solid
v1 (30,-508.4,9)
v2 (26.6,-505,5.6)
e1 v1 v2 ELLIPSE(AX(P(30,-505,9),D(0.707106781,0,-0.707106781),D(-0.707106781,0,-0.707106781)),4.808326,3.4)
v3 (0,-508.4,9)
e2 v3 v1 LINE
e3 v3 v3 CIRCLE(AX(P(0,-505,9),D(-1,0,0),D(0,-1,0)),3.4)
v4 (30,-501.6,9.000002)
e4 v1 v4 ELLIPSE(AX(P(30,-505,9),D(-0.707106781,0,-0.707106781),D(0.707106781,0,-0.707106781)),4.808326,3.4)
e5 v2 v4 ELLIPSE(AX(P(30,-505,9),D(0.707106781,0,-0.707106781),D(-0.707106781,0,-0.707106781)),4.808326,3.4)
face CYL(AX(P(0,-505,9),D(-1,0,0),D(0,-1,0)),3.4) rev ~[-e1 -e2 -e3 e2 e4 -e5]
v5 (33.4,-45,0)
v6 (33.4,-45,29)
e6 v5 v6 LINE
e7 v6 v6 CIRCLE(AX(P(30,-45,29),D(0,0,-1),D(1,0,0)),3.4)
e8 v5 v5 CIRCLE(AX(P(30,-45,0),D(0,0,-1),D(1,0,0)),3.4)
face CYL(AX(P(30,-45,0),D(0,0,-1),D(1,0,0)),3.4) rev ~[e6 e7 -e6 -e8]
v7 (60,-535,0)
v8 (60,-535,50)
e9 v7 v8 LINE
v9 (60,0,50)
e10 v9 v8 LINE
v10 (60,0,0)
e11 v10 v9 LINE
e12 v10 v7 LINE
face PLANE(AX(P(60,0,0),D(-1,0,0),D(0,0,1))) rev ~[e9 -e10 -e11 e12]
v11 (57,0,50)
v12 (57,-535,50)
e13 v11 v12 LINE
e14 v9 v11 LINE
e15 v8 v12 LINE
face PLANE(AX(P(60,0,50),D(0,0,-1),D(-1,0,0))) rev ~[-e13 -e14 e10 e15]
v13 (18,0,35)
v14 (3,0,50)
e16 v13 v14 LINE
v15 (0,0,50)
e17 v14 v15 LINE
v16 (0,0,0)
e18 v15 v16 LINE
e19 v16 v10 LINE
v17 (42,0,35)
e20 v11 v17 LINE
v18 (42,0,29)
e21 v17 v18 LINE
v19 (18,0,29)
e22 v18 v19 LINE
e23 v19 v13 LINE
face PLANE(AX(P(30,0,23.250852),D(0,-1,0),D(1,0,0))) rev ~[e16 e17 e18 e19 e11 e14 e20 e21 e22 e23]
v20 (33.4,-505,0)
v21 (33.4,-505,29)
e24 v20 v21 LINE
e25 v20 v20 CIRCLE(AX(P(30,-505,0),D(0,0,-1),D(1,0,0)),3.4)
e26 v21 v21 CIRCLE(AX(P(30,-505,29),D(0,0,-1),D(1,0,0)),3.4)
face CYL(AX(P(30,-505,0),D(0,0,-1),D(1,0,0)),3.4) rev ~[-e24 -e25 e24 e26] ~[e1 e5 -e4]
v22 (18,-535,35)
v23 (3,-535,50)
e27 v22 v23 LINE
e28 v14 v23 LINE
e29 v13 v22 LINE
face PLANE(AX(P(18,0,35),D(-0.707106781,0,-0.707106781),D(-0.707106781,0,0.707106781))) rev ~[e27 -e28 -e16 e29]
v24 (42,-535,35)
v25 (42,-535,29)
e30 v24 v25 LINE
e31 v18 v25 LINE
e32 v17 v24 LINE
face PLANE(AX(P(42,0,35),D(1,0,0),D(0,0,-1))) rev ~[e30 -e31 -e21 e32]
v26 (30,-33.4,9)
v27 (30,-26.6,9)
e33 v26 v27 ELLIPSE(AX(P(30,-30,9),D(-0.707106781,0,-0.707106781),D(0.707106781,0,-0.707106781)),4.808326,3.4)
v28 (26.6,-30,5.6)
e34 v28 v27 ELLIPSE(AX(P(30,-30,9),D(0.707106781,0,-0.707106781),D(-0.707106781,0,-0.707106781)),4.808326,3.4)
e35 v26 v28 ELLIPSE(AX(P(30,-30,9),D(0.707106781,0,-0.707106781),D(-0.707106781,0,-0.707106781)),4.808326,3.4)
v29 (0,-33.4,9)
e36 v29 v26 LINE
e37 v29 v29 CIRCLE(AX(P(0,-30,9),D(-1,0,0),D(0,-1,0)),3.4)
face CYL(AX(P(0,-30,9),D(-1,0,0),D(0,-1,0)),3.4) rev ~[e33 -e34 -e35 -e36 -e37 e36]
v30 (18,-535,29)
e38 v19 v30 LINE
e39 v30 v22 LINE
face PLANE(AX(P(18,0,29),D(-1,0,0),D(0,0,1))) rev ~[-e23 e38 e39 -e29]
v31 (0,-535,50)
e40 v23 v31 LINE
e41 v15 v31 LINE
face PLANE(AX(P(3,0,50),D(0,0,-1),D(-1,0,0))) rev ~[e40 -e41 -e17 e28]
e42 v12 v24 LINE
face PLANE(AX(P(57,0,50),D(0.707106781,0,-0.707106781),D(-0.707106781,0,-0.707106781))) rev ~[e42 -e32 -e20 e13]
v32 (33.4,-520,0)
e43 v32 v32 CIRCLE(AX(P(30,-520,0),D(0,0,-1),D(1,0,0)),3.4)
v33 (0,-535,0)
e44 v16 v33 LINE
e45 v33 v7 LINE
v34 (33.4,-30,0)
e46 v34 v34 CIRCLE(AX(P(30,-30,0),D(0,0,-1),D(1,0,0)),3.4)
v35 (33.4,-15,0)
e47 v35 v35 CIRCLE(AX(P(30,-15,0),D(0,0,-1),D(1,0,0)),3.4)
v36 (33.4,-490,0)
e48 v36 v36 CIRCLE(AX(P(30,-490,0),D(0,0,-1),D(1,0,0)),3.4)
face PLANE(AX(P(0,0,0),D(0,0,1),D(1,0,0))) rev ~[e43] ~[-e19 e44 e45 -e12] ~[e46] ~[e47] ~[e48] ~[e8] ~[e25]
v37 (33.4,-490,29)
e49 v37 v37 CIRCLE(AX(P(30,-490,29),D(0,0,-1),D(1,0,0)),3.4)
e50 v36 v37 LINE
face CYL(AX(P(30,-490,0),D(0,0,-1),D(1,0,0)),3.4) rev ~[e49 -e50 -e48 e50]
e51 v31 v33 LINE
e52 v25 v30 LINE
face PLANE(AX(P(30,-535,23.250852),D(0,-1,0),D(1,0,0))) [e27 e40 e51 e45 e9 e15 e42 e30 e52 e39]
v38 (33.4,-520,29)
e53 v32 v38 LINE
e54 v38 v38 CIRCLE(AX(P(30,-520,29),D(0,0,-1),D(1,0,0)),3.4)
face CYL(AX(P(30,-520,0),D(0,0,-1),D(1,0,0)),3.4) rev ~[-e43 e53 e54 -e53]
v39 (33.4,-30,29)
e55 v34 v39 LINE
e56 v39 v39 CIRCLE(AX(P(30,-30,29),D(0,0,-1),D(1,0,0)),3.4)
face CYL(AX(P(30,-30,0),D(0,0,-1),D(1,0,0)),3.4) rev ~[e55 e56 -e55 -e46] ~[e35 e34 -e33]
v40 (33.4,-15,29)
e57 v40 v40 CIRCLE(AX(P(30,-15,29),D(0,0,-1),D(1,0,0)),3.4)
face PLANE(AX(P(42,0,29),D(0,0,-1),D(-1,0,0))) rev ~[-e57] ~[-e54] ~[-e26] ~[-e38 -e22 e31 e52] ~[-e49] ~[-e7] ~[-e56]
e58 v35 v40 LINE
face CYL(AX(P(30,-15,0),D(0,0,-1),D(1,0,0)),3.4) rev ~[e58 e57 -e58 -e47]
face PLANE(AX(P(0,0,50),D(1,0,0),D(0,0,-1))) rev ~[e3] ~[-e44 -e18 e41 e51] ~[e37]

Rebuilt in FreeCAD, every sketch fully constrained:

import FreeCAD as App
import Part
import Sketcher
from FreeCAD import Vector


def add_polygon(sketch, points):
    """Adds a closed chain of lines whose ends are joined by coincident constraints."""
    first, n = sketch.GeometryCount, len(points)
    for a, b in zip(points, points[1:] + points[:1]):
        sketch.addGeometry(Part.LineSegment(App.Vector(*a, 0), App.Vector(*b, 0)), False)
    for i in range(n):
        sketch.addConstraint(Sketcher.Constraint("Coincident", first + i, 2, first + (i + 1) % n, 1))

doc = App.newDocument("Part")
body = doc.addObject("PartDesign::Body", "Body")

sketch1 = body.newObject("Sketcher::SketchObject", "Sketch")
sketch1.AttachmentSupport = (doc.getObject("XZ_Plane"), [""])
sketch1.MapMode = "FlatFace"
add_polygon(sketch1, [(0, 50), (0, 0), (60, 0), (60, 50), (57, 50), (42, 35), (42, 29), (18, 29), (18, 35), (3, 50)])
sketch1.addConstraint([
    Sketcher.Constraint("Vertical", 0),
    Sketcher.Constraint("Horizontal", 1),
    Sketcher.Constraint("Vertical", 2),
    Sketcher.Constraint("Horizontal", 3),
    Sketcher.Constraint("Vertical", 5),
    Sketcher.Constraint("Horizontal", 6),
    Sketcher.Constraint("Vertical", 7),
    Sketcher.Constraint("Horizontal", 9),
    Sketcher.Constraint("Coincident", 0, 2, -1, 1),
    Sketcher.Constraint("Perpendicular", 4, 8),
    Sketcher.Constraint("Horizontal", 4, 2, 7, 2),
    Sketcher.Constraint("Horizontal", 3, 2, 8, 2),
    Sketcher.Constraint("Equal", 3, 9),
    Sketcher.Constraint("Equal", 4, 8),
    Sketcher.Constraint("DistanceX", 1, 1, 1, 2, 60.0),
    Sketcher.Constraint("DistanceX", 3, 2, 3, 1, 3.0),
    Sketcher.Constraint("DistanceX", 6, 2, 6, 1, 24.0),
    Sketcher.Constraint("DistanceY", 0, 2, 0, 1, 50.0),
    Sketcher.Constraint("DistanceY", 5, 2, 5, 1, 6.0),
])
pad1 = body.newObject("PartDesign::Pad", "Pad")
pad1.Profile = sketch1
pad1.Length = 535

sketch2 = body.newObject("Sketcher::SketchObject", "Sketch001")
sketch2.AttachmentSupport = (doc.getObject("XY_Plane"), [""])
sketch2.MapMode = "FlatFace"
sketch2.addGeometry([
    Part.Circle(Vector(30, -520, 0), Vector(0, 0, 1), 3.4),
    Part.Circle(Vector(30, -505, 0), Vector(0, 0, 1), 3.4),
    Part.Circle(Vector(30, -490, 0), Vector(0, 0, 1), 3.4),
    Part.Circle(Vector(30, -45, 0), Vector(0, 0, 1), 3.4),
    Part.Circle(Vector(30, -30, 0), Vector(0, 0, 1), 3.4),
    Part.Circle(Vector(30, -15, 0), Vector(0, 0, 1), 3.4),
], False)
sketch2.addConstraint([
    Sketcher.Constraint("Equal", 0, 1),
    Sketcher.Constraint("Equal", 1, 2),
    Sketcher.Constraint("Equal", 2, 3),
    Sketcher.Constraint("Equal", 3, 4),
    Sketcher.Constraint("Equal", 4, 5),
    Sketcher.Constraint("Vertical", 0, 3, 1, 3),
    Sketcher.Constraint("Vertical", 1, 3, 2, 3),
    Sketcher.Constraint("Vertical", 2, 3, 3, 3),
    Sketcher.Constraint("Vertical", 3, 3, 4, 3),
    Sketcher.Constraint("Vertical", 4, 3, 5, 3),
    Sketcher.Constraint("Diameter", 0, 6.8),
    Sketcher.Constraint("DistanceX", -1, 1, 0, 3, 30.0),
    Sketcher.Constraint("DistanceY", 0, 3, -1, 1, 520.0),
    Sketcher.Constraint("DistanceY", 1, 3, -1, 1, 505.0),
    Sketcher.Constraint("DistanceY", 2, 3, -1, 1, 490.0),
    Sketcher.Constraint("DistanceY", 3, 3, -1, 1, 45.0),
    Sketcher.Constraint("DistanceY", 4, 3, -1, 1, 30.0),
    Sketcher.Constraint("DistanceY", 5, 3, -1, 1, 15.0),
])
pocket1 = body.newObject("PartDesign::Pocket", "Pocket")
pocket1.Profile = sketch2
pocket1.Length = 30
pocket1.Reversed = True

sketch3 = body.newObject("Sketcher::SketchObject", "Sketch002")
sketch3.AttachmentSupport = (doc.getObject("YZ_Plane"), [""])
sketch3.MapMode = "FlatFace"
sketch3.addGeometry([
    Part.Circle(Vector(-30, 9, 0), Vector(0, 0, 1), 3.4),
    Part.Circle(Vector(-505, 9, 0), Vector(0, 0, 1), 3.4),
], False)
sketch3.addConstraint([
    Sketcher.Constraint("Equal", 0, 1),
    Sketcher.Constraint("Horizontal", 0, 3, 1, 3),
    Sketcher.Constraint("Diameter", 0, 6.8),
    Sketcher.Constraint("DistanceX", 0, 3, -1, 1, 30.0),
    Sketcher.Constraint("DistanceY", -1, 1, 0, 3, 9.0),
    Sketcher.Constraint("DistanceX", 1, 3, -1, 1, 505.0),
])
pocket2 = body.newObject("PartDesign::Pocket", "Pocket001")
pocket2.Profile = sketch3
pocket2.Length = 30
pocket2.Reversed = True

doc.recompute()
